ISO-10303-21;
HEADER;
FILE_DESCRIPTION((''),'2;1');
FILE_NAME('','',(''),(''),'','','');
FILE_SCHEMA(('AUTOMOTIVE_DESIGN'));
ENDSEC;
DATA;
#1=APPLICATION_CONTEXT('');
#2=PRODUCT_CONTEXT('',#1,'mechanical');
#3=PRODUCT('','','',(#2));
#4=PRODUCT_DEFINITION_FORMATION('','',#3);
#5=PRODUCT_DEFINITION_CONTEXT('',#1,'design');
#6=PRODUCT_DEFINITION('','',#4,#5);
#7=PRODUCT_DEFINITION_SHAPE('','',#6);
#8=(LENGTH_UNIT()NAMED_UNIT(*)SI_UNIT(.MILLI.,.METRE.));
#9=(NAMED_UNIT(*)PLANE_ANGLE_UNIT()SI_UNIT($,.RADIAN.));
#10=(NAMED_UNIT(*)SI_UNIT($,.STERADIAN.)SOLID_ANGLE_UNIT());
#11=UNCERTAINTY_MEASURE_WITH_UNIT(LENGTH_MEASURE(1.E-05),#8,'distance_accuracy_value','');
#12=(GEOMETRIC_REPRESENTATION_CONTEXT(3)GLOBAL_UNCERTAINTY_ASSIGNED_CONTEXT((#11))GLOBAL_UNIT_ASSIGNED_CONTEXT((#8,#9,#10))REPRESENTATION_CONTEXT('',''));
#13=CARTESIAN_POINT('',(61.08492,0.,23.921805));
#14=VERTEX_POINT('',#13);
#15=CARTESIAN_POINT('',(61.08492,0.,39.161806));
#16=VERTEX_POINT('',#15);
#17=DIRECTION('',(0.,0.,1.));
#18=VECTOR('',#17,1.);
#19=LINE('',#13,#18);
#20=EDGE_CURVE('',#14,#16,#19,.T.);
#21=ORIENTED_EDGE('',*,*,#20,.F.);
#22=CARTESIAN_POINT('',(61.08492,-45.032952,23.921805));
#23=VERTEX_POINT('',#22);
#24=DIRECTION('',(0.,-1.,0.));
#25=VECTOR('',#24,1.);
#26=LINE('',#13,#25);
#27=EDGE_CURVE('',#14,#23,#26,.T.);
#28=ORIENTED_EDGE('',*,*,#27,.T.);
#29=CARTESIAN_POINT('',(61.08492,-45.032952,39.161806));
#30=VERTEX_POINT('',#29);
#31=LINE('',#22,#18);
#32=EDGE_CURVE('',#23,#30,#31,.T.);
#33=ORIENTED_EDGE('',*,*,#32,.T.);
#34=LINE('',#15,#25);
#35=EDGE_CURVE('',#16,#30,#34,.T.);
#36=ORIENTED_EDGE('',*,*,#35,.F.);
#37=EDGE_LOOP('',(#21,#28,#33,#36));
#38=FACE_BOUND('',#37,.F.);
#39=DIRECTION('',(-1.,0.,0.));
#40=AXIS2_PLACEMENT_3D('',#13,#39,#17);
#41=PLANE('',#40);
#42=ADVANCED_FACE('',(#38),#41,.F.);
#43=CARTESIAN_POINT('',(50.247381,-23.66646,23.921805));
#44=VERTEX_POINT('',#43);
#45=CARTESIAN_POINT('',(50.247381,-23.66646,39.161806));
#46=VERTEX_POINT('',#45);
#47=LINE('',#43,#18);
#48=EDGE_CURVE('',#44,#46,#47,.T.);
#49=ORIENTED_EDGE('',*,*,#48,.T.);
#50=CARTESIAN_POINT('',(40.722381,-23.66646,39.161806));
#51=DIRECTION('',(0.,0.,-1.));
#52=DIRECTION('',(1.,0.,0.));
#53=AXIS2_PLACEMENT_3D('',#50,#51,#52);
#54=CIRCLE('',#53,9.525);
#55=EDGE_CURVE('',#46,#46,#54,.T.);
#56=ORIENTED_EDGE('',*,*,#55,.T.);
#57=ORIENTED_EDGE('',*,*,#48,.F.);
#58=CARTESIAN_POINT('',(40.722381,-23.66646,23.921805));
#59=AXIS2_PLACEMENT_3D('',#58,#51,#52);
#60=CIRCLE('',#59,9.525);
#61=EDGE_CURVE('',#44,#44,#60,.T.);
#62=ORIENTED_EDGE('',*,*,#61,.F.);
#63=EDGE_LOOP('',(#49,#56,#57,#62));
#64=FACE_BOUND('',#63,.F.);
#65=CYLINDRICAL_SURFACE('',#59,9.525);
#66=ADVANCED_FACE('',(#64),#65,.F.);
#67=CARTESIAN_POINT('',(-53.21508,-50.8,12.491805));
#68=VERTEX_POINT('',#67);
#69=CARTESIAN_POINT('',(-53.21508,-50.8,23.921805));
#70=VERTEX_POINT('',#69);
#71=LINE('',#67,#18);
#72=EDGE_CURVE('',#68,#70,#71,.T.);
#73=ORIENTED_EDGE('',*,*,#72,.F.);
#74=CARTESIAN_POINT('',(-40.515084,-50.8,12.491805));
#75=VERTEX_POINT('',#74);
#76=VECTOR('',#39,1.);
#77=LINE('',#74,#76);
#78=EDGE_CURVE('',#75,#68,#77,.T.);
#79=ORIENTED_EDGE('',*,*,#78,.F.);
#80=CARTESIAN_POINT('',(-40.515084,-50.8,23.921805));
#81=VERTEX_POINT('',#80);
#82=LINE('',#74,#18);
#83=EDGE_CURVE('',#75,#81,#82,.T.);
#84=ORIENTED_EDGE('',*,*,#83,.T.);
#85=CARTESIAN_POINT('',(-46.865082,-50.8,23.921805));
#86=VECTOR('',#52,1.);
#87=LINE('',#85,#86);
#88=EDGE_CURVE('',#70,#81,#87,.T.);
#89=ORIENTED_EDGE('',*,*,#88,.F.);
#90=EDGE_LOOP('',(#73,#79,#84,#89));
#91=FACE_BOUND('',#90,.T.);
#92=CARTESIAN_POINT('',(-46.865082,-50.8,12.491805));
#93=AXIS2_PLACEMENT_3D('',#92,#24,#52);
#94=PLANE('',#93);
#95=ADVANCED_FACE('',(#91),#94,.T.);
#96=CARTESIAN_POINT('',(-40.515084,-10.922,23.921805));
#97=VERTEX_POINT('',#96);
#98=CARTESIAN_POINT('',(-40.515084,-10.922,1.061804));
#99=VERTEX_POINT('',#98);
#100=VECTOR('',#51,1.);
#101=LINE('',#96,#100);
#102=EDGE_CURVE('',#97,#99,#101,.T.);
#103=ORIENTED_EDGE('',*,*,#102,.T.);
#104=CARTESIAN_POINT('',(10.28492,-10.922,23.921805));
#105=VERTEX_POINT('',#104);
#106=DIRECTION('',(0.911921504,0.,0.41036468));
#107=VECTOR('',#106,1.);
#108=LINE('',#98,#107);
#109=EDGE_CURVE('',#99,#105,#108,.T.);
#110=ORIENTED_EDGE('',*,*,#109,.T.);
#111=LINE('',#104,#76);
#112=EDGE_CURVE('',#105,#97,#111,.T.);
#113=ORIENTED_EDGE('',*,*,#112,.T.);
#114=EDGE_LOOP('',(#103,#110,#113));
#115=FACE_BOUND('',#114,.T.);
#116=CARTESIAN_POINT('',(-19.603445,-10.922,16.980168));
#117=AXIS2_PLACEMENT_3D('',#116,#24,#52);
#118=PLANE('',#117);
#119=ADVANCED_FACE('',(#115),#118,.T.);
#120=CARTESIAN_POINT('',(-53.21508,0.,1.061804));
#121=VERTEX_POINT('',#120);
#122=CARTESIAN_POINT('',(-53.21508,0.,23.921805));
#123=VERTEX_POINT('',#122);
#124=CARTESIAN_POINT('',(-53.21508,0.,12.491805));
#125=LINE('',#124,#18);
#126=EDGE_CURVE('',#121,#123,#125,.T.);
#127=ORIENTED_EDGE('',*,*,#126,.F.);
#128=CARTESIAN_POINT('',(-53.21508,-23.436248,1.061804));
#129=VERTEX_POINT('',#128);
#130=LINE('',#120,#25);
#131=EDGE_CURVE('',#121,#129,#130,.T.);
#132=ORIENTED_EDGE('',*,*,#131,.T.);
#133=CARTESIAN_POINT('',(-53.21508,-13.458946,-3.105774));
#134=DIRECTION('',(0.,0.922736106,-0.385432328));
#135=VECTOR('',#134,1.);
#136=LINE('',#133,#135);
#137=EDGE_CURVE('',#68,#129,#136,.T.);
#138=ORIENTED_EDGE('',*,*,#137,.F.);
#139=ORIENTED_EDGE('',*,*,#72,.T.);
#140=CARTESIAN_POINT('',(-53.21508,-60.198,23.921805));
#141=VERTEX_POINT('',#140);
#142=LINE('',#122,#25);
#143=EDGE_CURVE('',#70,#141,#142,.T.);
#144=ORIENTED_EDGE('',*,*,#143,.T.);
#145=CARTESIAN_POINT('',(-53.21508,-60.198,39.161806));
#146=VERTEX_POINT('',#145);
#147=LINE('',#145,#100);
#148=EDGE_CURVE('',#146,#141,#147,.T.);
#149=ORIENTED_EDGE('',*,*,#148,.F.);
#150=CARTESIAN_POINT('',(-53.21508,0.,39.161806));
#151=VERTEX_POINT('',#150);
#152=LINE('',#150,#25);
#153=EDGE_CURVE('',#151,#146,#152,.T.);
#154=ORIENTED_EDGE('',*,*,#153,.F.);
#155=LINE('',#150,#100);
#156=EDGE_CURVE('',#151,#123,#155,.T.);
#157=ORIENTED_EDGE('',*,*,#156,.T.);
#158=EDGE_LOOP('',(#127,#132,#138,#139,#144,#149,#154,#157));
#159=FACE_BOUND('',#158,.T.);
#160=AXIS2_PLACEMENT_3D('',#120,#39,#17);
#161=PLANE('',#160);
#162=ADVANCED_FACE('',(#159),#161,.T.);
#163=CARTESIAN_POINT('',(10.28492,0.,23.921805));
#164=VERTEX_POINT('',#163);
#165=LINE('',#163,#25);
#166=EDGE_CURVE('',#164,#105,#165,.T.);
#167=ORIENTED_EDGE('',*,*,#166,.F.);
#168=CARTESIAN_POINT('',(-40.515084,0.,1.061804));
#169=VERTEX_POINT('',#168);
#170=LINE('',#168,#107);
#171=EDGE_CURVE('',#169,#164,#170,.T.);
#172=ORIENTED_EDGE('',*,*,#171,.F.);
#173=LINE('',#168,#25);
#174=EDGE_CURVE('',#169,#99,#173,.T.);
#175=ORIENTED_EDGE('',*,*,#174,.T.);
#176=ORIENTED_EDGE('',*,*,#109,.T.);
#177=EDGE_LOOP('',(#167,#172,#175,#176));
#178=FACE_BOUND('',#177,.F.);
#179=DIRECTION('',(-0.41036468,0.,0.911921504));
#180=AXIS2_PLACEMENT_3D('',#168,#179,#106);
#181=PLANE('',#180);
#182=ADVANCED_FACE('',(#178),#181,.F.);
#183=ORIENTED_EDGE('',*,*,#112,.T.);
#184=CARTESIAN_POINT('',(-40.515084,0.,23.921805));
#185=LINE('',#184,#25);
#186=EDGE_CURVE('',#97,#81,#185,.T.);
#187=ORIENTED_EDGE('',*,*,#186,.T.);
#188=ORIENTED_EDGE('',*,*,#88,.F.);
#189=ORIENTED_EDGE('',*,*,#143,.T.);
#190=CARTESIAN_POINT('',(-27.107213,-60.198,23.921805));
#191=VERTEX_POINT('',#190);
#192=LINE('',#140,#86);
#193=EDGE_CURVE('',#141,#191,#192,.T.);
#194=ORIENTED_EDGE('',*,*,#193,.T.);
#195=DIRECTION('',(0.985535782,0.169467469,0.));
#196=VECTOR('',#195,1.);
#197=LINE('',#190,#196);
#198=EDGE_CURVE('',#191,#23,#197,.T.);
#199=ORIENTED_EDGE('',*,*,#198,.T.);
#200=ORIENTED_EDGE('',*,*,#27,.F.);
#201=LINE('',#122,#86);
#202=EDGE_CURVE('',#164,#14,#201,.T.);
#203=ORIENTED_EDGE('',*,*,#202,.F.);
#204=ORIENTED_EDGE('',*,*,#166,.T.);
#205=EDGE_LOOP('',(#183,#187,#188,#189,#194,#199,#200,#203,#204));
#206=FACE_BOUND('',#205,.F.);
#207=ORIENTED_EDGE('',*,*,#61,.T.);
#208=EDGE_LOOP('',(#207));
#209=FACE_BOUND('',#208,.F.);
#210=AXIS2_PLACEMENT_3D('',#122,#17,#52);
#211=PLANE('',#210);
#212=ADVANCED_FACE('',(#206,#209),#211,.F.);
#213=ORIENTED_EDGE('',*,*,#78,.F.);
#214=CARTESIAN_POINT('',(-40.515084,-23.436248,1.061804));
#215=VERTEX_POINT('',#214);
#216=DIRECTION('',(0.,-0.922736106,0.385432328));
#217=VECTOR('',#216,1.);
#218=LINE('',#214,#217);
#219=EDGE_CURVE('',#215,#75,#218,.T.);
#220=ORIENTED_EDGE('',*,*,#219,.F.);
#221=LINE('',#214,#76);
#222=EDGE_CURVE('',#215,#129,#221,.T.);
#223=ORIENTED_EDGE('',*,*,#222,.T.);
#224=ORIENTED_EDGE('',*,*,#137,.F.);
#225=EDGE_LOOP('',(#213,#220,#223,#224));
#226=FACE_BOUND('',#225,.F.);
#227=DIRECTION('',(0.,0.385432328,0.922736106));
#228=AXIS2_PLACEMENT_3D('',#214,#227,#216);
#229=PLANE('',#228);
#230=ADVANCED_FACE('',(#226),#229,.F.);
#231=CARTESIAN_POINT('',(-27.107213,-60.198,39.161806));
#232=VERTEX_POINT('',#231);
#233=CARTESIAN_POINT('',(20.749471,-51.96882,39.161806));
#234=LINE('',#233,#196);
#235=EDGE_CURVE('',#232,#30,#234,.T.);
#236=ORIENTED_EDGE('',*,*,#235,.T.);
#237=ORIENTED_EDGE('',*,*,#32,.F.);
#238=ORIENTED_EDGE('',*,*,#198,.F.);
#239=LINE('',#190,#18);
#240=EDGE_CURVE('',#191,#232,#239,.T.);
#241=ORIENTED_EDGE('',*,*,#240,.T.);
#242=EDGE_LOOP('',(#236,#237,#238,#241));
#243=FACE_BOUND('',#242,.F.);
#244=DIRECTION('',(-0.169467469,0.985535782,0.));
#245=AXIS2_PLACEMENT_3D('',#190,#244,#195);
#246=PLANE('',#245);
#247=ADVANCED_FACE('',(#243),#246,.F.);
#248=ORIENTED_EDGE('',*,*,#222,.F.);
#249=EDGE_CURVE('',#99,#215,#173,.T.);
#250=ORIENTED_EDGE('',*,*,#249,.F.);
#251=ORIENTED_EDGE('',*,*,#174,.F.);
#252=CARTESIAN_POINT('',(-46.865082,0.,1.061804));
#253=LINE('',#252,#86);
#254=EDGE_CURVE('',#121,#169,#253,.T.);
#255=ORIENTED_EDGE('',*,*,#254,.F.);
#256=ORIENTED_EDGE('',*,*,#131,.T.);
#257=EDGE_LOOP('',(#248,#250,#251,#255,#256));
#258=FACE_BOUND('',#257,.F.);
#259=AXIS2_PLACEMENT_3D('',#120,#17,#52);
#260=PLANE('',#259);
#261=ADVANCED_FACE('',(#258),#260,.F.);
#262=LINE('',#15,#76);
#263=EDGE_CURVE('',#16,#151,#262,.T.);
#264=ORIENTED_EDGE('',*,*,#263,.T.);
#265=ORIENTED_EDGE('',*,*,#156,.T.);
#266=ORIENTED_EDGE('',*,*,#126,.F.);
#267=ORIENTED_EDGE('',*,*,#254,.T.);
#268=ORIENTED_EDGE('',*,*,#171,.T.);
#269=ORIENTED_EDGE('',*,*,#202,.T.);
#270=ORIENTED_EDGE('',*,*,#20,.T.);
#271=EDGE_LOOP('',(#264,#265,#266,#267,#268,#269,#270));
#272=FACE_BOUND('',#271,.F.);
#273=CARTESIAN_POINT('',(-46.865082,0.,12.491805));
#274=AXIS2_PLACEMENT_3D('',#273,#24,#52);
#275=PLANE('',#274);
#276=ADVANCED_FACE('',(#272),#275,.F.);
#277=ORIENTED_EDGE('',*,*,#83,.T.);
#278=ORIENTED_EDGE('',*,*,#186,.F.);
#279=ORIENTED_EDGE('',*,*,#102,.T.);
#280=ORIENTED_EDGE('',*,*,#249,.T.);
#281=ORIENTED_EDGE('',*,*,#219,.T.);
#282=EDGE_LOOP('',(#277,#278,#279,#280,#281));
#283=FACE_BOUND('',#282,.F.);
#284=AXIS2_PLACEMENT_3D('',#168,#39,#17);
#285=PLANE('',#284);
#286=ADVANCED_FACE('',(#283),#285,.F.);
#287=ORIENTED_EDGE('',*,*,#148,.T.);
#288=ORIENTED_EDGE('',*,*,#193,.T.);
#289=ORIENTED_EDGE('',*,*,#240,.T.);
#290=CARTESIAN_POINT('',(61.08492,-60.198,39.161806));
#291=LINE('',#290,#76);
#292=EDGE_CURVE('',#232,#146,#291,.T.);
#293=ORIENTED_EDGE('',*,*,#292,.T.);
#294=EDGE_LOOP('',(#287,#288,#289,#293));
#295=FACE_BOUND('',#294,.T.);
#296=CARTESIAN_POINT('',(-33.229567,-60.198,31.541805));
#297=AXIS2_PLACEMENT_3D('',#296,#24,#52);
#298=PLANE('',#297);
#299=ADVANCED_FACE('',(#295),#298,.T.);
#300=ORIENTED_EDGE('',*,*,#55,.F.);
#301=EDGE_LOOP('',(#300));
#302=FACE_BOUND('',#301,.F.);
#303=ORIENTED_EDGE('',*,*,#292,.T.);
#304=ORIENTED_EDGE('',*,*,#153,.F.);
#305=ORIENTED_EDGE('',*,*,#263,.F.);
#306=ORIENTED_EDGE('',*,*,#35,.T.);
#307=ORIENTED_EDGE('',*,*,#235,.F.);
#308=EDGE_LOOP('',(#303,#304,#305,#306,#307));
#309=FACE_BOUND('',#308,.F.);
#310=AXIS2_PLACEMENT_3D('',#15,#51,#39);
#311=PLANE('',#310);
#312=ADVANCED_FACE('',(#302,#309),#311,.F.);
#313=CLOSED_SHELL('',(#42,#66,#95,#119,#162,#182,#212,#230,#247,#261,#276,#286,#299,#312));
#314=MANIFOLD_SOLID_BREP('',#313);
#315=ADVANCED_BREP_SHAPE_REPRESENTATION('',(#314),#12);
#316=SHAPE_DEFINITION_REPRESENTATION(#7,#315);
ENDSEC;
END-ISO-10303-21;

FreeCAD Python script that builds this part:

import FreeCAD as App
import Part
import Sketcher

V = App.Vector
Q = App.Units.Quantity


def add_polygon(sketch, points):
    """Adds a closed chain of lines whose ends are joined by coincident constraints."""
    first, n = sketch.GeometryCount, len(points)
    for a, b in zip(points, points[1:] + points[:1]):
        sketch.addGeometry(Part.LineSegment(App.Vector(*a, 0), App.Vector(*b, 0)), False)
    for i in range(n):
        sketch.addConstraint(Sketcher.Constraint("Coincident", first + i, 2, first + (i + 1) % n, 1))

doc = App.newDocument("Part")
body = doc.addObject("PartDesign::Body", "Body")

sketch1 = doc.addObject("Sketcher::SketchObject", "Sketch")
body.addObject(sketch1)
sketch1.AttachmentSupport = (doc.XZ_Plane, [""])
sketch1.MapMode = "FlatFace"
add_polygon(sketch1, [(10, 24), (-41, 24), (-41, 1)])
sketch1.addConstraint([
    Sketcher.Constraint("Horizontal", 0),
    Sketcher.Constraint("Vertical", 1),
    Sketcher.Constraint("DistanceX", 0, 2, 0, 1, Q("2.0000001 in")),
    Sketcher.Constraint("DistanceY", 1, 2, 1, 1, Q("0.9000001 in")),
    Sketcher.Constraint("DistanceX", -1, 1, 2, 2, Q("10.28492 mm")),
    Sketcher.Constraint("DistanceY", -1, 1, 0, 2, Q("23.921805 mm")),
])
pad1 = doc.addObject("PartDesign::Pad", "Pad")
body.addObject(pad1)
pad1.Profile = sketch1
pad1.Length = Q("0.43 in")

sketch2 = doc.addObject("Sketcher::SketchObject", "Sketch001")
body.addObject(sketch2)
sketch2.AttachmentSupport = (doc.XZ_Plane, [""])
sketch2.MapMode = "FlatFace"
add_polygon(sketch2, [(-53, 39), (-53, 24), (61, 24), (61, 39)])
sketch2.addConstraint([
    Sketcher.Constraint("Vertical", 0),
    Sketcher.Constraint("Horizontal", 1),
    Sketcher.Constraint("Vertical", 2),
    Sketcher.Constraint("Horizontal", 3),
    Sketcher.Constraint("DistanceX", 1, 1, 1, 2, Q("4.5 in")),
    Sketcher.Constraint("DistanceY", 0, 2, 0, 1, Q("0.6 in")),
    Sketcher.Constraint("DistanceX", 0, 2, -1, 1, Q("53.21508 mm")),
    Sketcher.Constraint("DistanceY", -1, 1, 0, 2, Q("23.921805 mm")),
])
pad2 = doc.addObject("PartDesign::Pad", "Pad001")
body.addObject(pad2)
pad2.Profile = sketch2
pad2.Length = Q("2.37 in")

sketch3 = doc.addObject("Sketcher::SketchObject", "Sketch002")
body.addObject(sketch3)
sketch3.AttachmentSupport = (doc.XZ_Plane, [""])
sketch3.MapMode = "FlatFace"
add_polygon(sketch3, [(-53, 24), (-53, 1), (-41, 1), (-41, 24)])
sketch3.addConstraint([
    Sketcher.Constraint("Vertical", 0),
    Sketcher.Constraint("Horizontal", 1),
    Sketcher.Constraint("Vertical", 2),
    Sketcher.Constraint("Horizontal", 3),
    Sketcher.Constraint("DistanceX", 1, 1, 1, 2, Q("0.4999999 in")),
    Sketcher.Constraint("DistanceY", 0, 2, 0, 1, Q("0.9000001 in")),
    Sketcher.Constraint("DistanceX", 0, 2, -1, 1, Q("53.21508 mm")),
    Sketcher.Constraint("DistanceY", -1, 1, 0, 2, Q("1.061804 mm")),
])
pad3 = doc.addObject("PartDesign::Pad", "Pad002")
body.addObject(pad3)
pad3.Profile = sketch3
pad3.Length = Q("2 in")

sketch4 = doc.addObject("Sketcher::SketchObject", "Sketch003")
body.addObject(sketch4)
sketch4.AttachmentSupport = (doc.YZ_Plane, [""])
sketch4.MapMode = "FlatFace"
sketch4.AttachmentOffset = App.Placement(V(0, 0, -40.515084), App.Rotation())
add_polygon(sketch4, [(-23, 1), (-51, 12), (-51, 1)])
sketch4.addConstraint([
    Sketcher.Constraint("Vertical", 1),
    Sketcher.Constraint("Horizontal", 2),
    Sketcher.Constraint("DistanceX", 0, 2, -1, 1, Q("2 in")),
    Sketcher.Constraint("DistanceY", 1, 2, 1, 1, Q("0.45 in")),
    Sketcher.Constraint("DistanceX", 2, 1, 2, 2, Q("27.363752 mm")),
    Sketcher.Constraint("DistanceY", -1, 1, 0, 2, Q("12.491805 mm")),
])
pocket1 = doc.addObject("PartDesign::Pocket", "Pocket")
body.addObject(pocket1)
pocket1.Profile = sketch4
pocket1.Length = Q("1 in")

sketch5 = doc.addObject("Sketcher::SketchObject", "Sketch004")
body.addObject(sketch5)
sketch5.AttachmentSupport = (doc.XY_Plane, [""])
sketch5.MapMode = "FlatFace"
sketch5.AttachmentOffset = App.Placement(V(0, 0, 23.921805), App.Rotation())
add_polygon(sketch5, [(61, -60), (-27, -60), (61, -45)])
sketch5.addGeometry(Part.Circle(V(41, -24, 0), V(0, 0, 1), 10), False)
sketch5.addConstraint([
    Sketcher.Constraint("Horizontal", 0),
    Sketcher.Constraint("Vertical", 2),
    Sketcher.Constraint("Diameter", 3, Q("0.75 in")),
    Sketcher.Constraint("DistanceY", 0, 2, -1, 1, Q("2.37 in")),
    Sketcher.Constraint("DistanceY", 2, 2, 2, 1, Q("15.165048 mm")),
    Sketcher.Constraint("DistanceX", 0, 2, 0, 1, Q("88.192133 mm")),
    Sketcher.Constraint("DistanceX", -1, 1, 3, 3, Q("40.722381 mm")),
    Sketcher.Constraint("DistanceY", 3, 3, -1, 1, Q("23.66646 mm")),
    Sketcher.Constraint("DistanceX", -1, 1, 1, 2, Q("61.08492 mm")),
])
pocket2 = doc.addObject("PartDesign::Pocket", "Pocket001")
body.addObject(pocket2)
pocket2.Profile = sketch5
pocket2.Length = Q("1 in")
pocket2.Reversed = True

sketch6 = doc.addObject("Sketcher::SketchObject", "Sketch005")
body.addObject(sketch6)
sketch6.AttachmentSupport = (doc.XY_Plane, [""])
sketch6.MapMode = "FlatFace"
sketch6.AttachmentOffset = App.Placement(V(0, 0, 23.921805), App.Rotation())
add_polygon(sketch6, [(61, -60), (-27, -60), (61, -45)])
sketch6.addGeometry(Part.Circle(V(41, -24, 0), V(0, 0, 1), 10), False)
sketch6.addConstraint([
    Sketcher.Constraint("Horizontal", 0),
    Sketcher.Constraint("Vertical", 2),
    Sketcher.Constraint("Diameter", 3, Q("0.75 in")),
    Sketcher.Constraint("DistanceY", 0, 2, -1, 1, Q("2.37 in")),
    Sketcher.Constraint("DistanceY", 2, 2, 2, 1, Q("15.165048 mm")),
    Sketcher.Constraint("DistanceX", 0, 2, 0, 1, Q("88.192133 mm")),
    Sketcher.Constraint("DistanceX", -1, 1, 3, 3, Q("40.722381 mm")),
    Sketcher.Constraint("DistanceY", 3, 3, -1, 1, Q("23.66646 mm")),
    Sketcher.Constraint("DistanceX", -1, 1, 1, 2, Q("61.08492 mm")),
])
pocket3 = doc.addObject("PartDesign::Pocket", "Pocket002")
body.addObject(pocket3)
pocket3.Profile = sketch6
pocket3.Length = Q("1 in")
pocket3.Reversed = True

doc.recompute()
